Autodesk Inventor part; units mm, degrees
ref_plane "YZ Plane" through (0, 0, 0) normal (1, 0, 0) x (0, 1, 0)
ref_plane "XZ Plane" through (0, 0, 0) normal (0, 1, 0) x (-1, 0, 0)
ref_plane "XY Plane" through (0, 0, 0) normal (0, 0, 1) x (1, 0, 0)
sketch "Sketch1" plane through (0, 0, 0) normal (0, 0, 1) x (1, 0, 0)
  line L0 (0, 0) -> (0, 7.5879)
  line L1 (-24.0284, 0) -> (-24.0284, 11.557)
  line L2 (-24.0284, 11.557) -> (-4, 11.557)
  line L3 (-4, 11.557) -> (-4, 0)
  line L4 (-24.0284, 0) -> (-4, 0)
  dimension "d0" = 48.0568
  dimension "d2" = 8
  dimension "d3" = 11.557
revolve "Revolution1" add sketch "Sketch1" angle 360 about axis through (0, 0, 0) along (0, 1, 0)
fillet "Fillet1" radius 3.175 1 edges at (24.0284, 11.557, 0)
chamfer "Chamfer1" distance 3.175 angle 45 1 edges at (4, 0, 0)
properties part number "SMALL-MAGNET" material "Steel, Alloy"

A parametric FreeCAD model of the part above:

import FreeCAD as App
import Part
import Sketcher
from FreeCAD import Vector
Q = App.Units.Quantity


def edges_at(feature, points):
    """Names of the edges that pass closest to the given points."""
    edges = feature.Shape.Edges
    near = lambda p: min(range(len(edges)), key=lambda i: edges[i].distToShape(Part.Vertex(*p))[0])
    return sorted({f"Edge{near(p) + 1}" for p in points})

doc = App.newDocument("Part")
body = doc.addObject("PartDesign::Body", "Body")

# Sketch on XY plane
sketch1 = body.newObject("Sketcher::SketchObject", "Sketch")
sketch1.AttachmentSupport = (doc.getObject("XY_Plane"), [""])
sketch1.MapMode = "FlatFace"
sketch1.addGeometry([
    Part.LineSegment(Vector(-24, 12, 0), Vector(-24, 0, 0)),
    Part.LineSegment(Vector(-24, 0, 0), Vector(-4, 0, 0)),
    Part.LineSegment(Vector(-4, 0, 0), Vector(-4, 12, 0)),
    Part.LineSegment(Vector(-4, 12, 0), Vector(-24, 12, 0)),
], False)
sketch1.addConstraint([
    Sketcher.Constraint("Coincident", 0, 2, 1, 1),
    Sketcher.Constraint("Coincident", 1, 2, 2, 1),
    Sketcher.Constraint("Coincident", 2, 2, 3, 1),
    Sketcher.Constraint("Coincident", 3, 2, 0, 1),
    Sketcher.Constraint("Vertical", 0),
    Sketcher.Constraint("Horizontal", 1),
    Sketcher.Constraint("Vertical", 2),
    Sketcher.Constraint("Horizontal", 3),
    Sketcher.Constraint("PointOnObject", 0, 2, -1),
    Sketcher.Constraint("DistanceY", 0, 2, 0, 1, Q("0.455 in")),
    Sketcher.Constraint("DistanceX", 0, 2, -1, 1, Q("0.946 in")),
    Sketcher.Constraint("DistanceX", 1, 1, 1, 2, Q("20.0284 mm")),
])
revolution = body.newObject("PartDesign::Revolution", "Revolution")
revolution.Profile = sketch1
revolution.ReferenceAxis = (sketch1, ["V_Axis"])
revolution.Angle = 360
doc.recompute()

fillet = body.newObject("PartDesign::Fillet", "Fillet")
fillet.Base = (revolution, edges_at(revolution, [(24.028, 11.557, 0)]))
fillet.Radius = Q("0.125 in")
doc.recompute()

chamfer = body.newObject("PartDesign::Chamfer", "Chamfer")
chamfer.Base = (fillet, edges_at(fillet, [(4, 0, 0)]))
chamfer.Size = Q("0.125 in")

doc.recompute()
